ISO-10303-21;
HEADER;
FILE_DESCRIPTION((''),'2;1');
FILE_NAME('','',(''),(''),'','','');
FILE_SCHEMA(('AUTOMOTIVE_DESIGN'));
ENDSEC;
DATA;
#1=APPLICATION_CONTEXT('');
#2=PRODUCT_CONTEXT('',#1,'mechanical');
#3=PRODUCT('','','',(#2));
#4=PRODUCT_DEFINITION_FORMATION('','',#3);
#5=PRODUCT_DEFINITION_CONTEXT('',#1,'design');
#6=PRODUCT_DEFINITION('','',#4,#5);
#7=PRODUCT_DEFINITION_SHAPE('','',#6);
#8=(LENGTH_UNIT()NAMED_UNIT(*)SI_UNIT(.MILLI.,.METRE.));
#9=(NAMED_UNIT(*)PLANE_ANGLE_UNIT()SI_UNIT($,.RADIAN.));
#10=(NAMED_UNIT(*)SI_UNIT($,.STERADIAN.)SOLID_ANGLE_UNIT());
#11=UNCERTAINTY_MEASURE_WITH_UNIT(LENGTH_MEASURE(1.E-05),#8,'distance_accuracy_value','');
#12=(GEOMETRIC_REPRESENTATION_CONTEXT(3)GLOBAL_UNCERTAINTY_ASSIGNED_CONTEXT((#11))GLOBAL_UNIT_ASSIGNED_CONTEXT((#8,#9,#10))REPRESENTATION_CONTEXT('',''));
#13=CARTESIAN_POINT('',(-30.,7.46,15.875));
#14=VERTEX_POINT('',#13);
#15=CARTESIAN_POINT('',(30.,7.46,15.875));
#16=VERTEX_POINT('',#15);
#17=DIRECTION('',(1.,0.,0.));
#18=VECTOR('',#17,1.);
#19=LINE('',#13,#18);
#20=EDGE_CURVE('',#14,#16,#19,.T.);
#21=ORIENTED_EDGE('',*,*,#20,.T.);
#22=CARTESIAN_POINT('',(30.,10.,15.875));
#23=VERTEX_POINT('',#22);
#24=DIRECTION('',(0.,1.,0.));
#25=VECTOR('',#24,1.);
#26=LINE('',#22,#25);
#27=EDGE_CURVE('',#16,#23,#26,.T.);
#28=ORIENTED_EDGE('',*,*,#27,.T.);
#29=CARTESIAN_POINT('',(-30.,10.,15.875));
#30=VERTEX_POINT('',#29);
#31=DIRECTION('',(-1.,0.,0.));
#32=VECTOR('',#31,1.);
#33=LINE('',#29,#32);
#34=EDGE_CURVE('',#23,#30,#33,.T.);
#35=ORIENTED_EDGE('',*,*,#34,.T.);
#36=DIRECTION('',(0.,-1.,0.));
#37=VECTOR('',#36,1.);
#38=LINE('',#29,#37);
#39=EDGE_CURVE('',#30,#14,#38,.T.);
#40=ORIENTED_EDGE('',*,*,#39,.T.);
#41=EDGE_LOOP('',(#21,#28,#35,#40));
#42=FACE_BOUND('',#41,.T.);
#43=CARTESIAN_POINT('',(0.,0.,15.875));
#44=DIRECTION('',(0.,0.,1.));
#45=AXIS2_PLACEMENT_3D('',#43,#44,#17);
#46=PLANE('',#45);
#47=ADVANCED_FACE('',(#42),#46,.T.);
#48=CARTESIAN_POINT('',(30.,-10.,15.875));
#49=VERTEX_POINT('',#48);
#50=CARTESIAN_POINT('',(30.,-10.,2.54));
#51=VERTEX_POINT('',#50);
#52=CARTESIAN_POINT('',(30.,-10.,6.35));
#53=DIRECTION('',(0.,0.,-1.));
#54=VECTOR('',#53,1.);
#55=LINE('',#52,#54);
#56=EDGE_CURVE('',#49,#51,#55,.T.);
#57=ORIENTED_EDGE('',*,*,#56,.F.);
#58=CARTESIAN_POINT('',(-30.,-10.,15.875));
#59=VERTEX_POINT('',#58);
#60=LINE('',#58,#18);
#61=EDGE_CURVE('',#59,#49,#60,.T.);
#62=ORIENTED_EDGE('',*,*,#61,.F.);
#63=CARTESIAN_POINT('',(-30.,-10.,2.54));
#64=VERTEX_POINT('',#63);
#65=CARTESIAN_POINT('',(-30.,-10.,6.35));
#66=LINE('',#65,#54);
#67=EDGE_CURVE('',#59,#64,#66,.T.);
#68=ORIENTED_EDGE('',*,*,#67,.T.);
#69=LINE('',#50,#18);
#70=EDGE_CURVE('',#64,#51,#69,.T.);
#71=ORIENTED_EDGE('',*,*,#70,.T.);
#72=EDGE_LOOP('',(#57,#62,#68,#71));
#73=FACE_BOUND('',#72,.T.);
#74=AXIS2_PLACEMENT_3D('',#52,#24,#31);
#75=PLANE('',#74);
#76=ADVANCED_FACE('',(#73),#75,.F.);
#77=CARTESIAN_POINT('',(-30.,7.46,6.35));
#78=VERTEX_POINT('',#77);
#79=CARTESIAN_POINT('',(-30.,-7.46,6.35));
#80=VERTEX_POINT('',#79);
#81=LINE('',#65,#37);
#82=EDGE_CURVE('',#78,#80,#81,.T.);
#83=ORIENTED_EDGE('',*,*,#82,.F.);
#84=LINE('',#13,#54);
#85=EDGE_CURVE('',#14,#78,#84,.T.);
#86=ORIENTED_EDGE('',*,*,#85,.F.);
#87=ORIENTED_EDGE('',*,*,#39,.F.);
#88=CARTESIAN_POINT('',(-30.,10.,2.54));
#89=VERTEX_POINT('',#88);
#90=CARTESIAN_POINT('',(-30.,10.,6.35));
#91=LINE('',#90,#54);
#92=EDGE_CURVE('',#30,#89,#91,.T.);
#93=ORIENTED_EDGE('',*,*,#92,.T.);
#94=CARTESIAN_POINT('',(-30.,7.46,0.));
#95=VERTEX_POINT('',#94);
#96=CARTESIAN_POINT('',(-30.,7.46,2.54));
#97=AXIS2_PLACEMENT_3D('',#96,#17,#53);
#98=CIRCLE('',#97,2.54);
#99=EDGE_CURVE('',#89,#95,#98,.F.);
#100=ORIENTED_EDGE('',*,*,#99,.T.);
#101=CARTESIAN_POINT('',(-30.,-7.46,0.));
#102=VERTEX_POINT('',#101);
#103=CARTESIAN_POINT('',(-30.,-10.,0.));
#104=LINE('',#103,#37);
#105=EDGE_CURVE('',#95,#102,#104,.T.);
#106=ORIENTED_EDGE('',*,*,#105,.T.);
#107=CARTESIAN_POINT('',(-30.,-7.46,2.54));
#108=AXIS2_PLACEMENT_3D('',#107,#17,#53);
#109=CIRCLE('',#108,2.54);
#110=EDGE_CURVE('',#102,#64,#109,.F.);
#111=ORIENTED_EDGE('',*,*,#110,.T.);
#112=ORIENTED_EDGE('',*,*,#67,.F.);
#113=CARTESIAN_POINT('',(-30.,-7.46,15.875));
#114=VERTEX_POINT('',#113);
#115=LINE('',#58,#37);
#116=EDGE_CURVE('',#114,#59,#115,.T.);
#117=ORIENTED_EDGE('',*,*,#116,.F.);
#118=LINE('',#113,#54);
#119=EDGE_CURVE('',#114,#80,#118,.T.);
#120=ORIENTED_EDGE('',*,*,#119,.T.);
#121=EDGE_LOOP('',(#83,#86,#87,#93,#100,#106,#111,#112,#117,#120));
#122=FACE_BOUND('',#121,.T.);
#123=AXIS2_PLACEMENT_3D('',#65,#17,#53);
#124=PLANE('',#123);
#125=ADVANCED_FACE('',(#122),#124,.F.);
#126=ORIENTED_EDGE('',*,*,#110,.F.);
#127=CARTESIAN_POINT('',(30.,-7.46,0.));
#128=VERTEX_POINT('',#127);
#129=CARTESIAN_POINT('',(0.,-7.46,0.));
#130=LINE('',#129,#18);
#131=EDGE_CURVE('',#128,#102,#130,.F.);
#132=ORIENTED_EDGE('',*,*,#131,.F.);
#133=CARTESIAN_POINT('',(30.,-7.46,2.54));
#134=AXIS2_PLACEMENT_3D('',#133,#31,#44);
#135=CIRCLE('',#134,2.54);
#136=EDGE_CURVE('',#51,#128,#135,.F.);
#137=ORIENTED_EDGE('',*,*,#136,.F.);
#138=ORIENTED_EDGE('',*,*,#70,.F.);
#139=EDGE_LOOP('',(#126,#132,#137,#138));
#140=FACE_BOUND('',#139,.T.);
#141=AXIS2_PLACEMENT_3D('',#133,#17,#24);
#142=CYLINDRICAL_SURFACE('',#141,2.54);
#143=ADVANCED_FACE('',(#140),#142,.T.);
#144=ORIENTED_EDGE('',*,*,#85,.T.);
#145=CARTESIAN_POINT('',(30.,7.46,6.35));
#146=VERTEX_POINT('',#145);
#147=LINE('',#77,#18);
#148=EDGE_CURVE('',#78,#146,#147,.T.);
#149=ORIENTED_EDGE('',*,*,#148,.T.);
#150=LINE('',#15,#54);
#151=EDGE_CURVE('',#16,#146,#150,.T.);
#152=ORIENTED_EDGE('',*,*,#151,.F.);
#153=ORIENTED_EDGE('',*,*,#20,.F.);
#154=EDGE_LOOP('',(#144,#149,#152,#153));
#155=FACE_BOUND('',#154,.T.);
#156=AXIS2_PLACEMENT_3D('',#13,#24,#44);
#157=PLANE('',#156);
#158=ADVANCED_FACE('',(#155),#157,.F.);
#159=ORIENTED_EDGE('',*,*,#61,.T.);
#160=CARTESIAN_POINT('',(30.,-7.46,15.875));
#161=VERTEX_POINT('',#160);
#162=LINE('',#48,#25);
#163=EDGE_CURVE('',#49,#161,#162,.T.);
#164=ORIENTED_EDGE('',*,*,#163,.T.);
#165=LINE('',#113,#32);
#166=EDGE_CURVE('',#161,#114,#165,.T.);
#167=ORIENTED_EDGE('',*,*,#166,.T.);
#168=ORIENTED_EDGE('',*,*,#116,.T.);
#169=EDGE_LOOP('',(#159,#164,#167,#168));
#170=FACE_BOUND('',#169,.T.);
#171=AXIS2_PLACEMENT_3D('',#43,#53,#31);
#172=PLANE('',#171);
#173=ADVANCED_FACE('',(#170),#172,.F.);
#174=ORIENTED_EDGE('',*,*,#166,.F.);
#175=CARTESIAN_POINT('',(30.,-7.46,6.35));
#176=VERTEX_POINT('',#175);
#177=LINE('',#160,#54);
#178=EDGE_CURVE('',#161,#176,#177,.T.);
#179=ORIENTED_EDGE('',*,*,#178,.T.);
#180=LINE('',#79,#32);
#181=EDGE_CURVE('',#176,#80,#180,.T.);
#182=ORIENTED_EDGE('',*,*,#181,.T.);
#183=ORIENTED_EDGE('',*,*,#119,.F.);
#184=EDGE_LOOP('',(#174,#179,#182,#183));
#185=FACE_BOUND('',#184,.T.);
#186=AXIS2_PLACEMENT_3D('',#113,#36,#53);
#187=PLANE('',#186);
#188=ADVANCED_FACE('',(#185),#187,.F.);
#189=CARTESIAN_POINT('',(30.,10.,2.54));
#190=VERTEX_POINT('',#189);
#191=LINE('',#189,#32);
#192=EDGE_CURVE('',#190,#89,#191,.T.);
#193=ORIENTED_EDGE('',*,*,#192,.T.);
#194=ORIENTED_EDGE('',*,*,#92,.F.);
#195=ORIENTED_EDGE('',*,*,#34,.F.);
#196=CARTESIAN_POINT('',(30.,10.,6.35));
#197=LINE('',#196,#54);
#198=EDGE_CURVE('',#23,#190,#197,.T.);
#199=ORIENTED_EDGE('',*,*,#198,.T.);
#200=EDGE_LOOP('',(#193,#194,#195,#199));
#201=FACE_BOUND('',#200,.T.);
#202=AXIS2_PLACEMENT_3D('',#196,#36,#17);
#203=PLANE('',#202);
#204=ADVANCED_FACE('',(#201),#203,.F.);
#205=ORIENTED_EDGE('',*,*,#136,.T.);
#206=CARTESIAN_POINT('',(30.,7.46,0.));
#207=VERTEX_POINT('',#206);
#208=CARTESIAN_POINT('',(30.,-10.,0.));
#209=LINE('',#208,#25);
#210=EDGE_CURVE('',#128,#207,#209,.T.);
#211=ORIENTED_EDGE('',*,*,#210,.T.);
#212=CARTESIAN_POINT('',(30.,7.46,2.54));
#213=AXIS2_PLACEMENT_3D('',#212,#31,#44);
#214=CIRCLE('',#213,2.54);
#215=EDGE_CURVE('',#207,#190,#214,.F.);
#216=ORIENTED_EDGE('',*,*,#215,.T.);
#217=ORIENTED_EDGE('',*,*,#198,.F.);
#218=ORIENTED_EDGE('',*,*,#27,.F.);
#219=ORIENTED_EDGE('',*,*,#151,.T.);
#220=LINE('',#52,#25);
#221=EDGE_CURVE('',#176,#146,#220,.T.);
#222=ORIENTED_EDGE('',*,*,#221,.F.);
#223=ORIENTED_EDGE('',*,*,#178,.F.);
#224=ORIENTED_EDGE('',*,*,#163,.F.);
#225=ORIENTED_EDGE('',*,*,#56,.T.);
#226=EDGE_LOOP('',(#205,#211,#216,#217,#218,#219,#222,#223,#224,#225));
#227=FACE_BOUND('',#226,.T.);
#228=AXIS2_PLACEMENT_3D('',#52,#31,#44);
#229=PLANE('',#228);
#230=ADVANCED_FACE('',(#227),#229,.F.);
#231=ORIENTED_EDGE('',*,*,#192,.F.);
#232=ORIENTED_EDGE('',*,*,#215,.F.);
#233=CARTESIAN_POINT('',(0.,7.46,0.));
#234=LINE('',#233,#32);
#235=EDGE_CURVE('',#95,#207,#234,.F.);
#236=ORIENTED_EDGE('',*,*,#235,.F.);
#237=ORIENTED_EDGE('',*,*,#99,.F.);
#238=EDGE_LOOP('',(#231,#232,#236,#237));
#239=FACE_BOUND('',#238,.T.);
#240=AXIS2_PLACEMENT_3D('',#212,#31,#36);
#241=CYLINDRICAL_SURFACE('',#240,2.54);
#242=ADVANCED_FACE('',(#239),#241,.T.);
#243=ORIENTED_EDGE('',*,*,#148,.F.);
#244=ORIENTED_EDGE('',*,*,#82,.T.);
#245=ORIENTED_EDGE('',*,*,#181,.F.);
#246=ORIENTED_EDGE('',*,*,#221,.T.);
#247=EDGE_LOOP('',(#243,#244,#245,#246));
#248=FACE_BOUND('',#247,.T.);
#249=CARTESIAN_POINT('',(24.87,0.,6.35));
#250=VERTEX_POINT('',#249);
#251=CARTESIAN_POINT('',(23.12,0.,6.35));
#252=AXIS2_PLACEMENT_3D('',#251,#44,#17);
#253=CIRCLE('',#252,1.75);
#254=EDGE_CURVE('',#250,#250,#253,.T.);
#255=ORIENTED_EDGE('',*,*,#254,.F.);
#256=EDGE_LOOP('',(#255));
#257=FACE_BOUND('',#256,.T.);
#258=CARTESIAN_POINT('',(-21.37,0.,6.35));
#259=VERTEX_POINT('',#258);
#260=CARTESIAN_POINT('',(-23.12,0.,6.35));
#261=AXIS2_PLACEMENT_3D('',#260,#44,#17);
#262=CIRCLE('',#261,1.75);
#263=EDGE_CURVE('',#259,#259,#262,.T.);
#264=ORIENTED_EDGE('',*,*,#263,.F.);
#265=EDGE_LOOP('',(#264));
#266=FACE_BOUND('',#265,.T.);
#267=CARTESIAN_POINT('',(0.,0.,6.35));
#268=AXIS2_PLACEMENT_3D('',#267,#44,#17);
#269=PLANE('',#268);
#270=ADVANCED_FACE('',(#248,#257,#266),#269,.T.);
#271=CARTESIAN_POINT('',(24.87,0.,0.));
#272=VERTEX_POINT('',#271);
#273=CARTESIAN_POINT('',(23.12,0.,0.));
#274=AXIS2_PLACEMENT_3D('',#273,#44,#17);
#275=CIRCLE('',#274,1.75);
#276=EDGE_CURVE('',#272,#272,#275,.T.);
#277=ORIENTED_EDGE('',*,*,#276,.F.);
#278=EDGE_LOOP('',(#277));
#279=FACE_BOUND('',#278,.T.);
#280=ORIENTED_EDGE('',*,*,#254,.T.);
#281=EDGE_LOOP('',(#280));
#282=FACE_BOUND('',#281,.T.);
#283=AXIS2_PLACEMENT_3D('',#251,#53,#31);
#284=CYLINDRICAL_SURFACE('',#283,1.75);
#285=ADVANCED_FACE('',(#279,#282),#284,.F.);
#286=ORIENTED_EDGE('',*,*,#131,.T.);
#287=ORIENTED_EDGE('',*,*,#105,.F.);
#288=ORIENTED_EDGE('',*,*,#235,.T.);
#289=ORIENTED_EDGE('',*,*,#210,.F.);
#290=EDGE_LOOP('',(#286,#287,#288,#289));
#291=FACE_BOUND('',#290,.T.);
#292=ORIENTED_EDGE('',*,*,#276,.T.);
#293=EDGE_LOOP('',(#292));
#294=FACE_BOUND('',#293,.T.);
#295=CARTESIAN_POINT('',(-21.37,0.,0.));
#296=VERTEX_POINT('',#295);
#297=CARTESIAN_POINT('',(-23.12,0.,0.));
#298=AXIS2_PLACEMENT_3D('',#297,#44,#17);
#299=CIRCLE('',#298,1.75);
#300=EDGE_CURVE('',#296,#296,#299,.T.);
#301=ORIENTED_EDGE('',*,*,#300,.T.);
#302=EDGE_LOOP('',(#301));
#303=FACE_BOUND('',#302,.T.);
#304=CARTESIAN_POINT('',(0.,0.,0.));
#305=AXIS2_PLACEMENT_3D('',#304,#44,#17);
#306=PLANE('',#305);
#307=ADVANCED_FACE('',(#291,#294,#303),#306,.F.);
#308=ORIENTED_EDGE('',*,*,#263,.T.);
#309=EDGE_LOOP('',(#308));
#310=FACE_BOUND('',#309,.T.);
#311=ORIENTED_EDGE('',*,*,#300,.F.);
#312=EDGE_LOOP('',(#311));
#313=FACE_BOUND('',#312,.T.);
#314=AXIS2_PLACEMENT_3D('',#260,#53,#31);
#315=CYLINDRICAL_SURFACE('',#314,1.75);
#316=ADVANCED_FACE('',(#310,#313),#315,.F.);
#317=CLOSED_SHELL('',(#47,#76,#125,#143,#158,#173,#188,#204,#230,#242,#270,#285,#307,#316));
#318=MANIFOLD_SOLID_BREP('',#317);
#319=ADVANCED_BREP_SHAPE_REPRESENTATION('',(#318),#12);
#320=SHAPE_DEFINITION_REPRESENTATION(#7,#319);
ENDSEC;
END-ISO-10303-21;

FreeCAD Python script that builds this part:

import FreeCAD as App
import Part
import Sketcher

V = App.Vector


def edges_at(feature, points):
    """Names of the edges that pass closest to the given points."""
    edges = feature.Shape.Edges
    near = lambda p: min(range(len(edges)), key=lambda i: edges[i].distToShape(Part.Vertex(*p))[0])
    return sorted({f"Edge{near(p) + 1}" for p in points})

doc = App.newDocument("Part")
body = doc.addObject("PartDesign::Body", "Body")

# Sketch on XY plane
sketch1 = body.newObject("Sketcher::SketchObject", "Sketch")
sketch1.AttachmentSupport = (doc.getObject("XY_Plane"), [""])
sketch1.MapMode = "FlatFace"
sketch1.addGeometry(Part.LineSegment(V(-30, 10, 0), V(-30, -10, 0)), False)
sketch1.addGeometry(Part.LineSegment(V(-30, -10, 0), V(30, -10, 0)), False)
sketch1.addGeometry(Part.LineSegment(V(30, -10, 0), V(30, 10, 0)), False)
sketch1.addGeometry(Part.LineSegment(V(30, 10, 0), V(-30, 10, 0)), False)
sketch1.addGeometry(Part.Circle(V(-23.1, 0, 0), V(0, 0, 1), 1.8), False)
sketch1.addGeometry(Part.Circle(V(23.1, 0, 0), V(0, 0, 1), 1.8), False)
sketch1.addConstraint(Sketcher.Constraint("Coincident", 0, 2, 1, 1))
sketch1.addConstraint(Sketcher.Constraint("Coincident", 1, 2, 2, 1))
sketch1.addConstraint(Sketcher.Constraint("Coincident", 2, 2, 3, 1))
sketch1.addConstraint(Sketcher.Constraint("Coincident", 3, 2, 0, 1))
sketch1.addConstraint(Sketcher.Constraint("Vertical", 0))
sketch1.addConstraint(Sketcher.Constraint("Horizontal", 1))
sketch1.addConstraint(Sketcher.Constraint("Vertical", 2))
sketch1.addConstraint(Sketcher.Constraint("Horizontal", 3))
sketch1.addConstraint(Sketcher.Constraint("Equal", 4, 5))
sketch1.addConstraint(Sketcher.Constraint("Symmetric", 4, 3, 5, 3, -1, 1))
sketch1.addConstraint(Sketcher.Constraint("Symmetric", 0, 2, 2, 2, -1, 1))
sketch1.addConstraint(Sketcher.Constraint("PointOnObject", 4, 3, -1))
sketch1.addConstraint(Sketcher.Constraint("Diameter", 4, 3.5))
sketch1.addConstraint(Sketcher.Constraint("DistanceX", 1, 1, 1, 2, 60.0))
sketch1.addConstraint(Sketcher.Constraint("DistanceY", 0, 2, 0, 1, 20.0))
sketch1.addConstraint(Sketcher.Constraint("DistanceX", 4, 3, -1, 1, 23.12))
pad1 = body.newObject("PartDesign::Pad", "Pad")
pad1.Profile = sketch1
pad1.Length = 6.35

# Sketch on XY plane
sketch2 = body.newObject("Sketcher::SketchObject", "Sketch001")
sketch2.AttachmentSupport = (doc.getObject("XY_Plane"), [""])
sketch2.MapMode = "FlatFace"
sketch2.AttachmentOffset = App.Placement(V(0, 0, 6.35), App.Rotation())
sketch2.addGeometry(Part.LineSegment(V(-30, 10, 0), V(-30, 7.5, 0)), False)
sketch2.addGeometry(Part.LineSegment(V(-30, 7.5, 0), V(30, 7.5, 0)), False)
sketch2.addGeometry(Part.LineSegment(V(30, 7.5, 0), V(30, 10, 0)), False)
sketch2.addGeometry(Part.LineSegment(V(30, 10, 0), V(-30, 10, 0)), False)
sketch2.addGeometry(Part.LineSegment(V(-30, -7.5, 0), V(-30, -10, 0)), False)
sketch2.addGeometry(Part.LineSegment(V(-30, -10, 0), V(30, -10, 0)), False)
sketch2.addGeometry(Part.LineSegment(V(30, -10, 0), V(30, -7.5, 0)), False)
sketch2.addGeometry(Part.LineSegment(V(30, -7.5, 0), V(-30, -7.5, 0)), False)
sketch2.addConstraint(Sketcher.Constraint("Coincident", 0, 2, 1, 1))
sketch2.addConstraint(Sketcher.Constraint("Coincident", 1, 2, 2, 1))
sketch2.addConstraint(Sketcher.Constraint("Coincident", 2, 2, 3, 1))
sketch2.addConstraint(Sketcher.Constraint("Coincident", 3, 2, 0, 1))
sketch2.addConstraint(Sketcher.Constraint("Coincident", 4, 2, 5, 1))
sketch2.addConstraint(Sketcher.Constraint("Coincident", 5, 2, 6, 1))
sketch2.addConstraint(Sketcher.Constraint("Coincident", 6, 2, 7, 1))
sketch2.addConstraint(Sketcher.Constraint("Coincident", 7, 2, 4, 1))
sketch2.addConstraint(Sketcher.Constraint("Vertical", 0))
sketch2.addConstraint(Sketcher.Constraint("Horizontal", 1))
sketch2.addConstraint(Sketcher.Constraint("Vertical", 2))
sketch2.addConstraint(Sketcher.Constraint("Horizontal", 3))
sketch2.addConstraint(Sketcher.Constraint("Vertical", 4))
sketch2.addConstraint(Sketcher.Constraint("Horizontal", 5))
sketch2.addConstraint(Sketcher.Constraint("Vertical", 6))
sketch2.addConstraint(Sketcher.Constraint("Horizontal", 7))
sketch2.addConstraint(Sketcher.Constraint("Symmetric", 2, 2, 4, 2, -1, 1))
sketch2.addConstraint(Sketcher.Constraint("Symmetric", 0, 2, 6, 2, -1, 1))
sketch2.addConstraint(Sketcher.Constraint("Vertical", 3, 2, 4, 2))
sketch2.addConstraint(Sketcher.Constraint("DistanceX", 1, 1, 1, 2, 60.0))
sketch2.addConstraint(Sketcher.Constraint("DistanceY", -1, 1, 2, 2, 10.0))
sketch2.addConstraint(Sketcher.Constraint("DistanceY", 0, 2, 0, 1, 2.54))
pad2 = body.newObject("PartDesign::Pad", "Pad001")
pad2.Profile = sketch2
pad2.Length = 9.525
doc.recompute()

fillet = body.newObject("PartDesign::Fillet", "Fillet")
fillet.Base = (pad2, edges_at(pad2, [(0, 10, 0), (0, -10, 0)]))
fillet.Radius = 2.54

doc.recompute()
